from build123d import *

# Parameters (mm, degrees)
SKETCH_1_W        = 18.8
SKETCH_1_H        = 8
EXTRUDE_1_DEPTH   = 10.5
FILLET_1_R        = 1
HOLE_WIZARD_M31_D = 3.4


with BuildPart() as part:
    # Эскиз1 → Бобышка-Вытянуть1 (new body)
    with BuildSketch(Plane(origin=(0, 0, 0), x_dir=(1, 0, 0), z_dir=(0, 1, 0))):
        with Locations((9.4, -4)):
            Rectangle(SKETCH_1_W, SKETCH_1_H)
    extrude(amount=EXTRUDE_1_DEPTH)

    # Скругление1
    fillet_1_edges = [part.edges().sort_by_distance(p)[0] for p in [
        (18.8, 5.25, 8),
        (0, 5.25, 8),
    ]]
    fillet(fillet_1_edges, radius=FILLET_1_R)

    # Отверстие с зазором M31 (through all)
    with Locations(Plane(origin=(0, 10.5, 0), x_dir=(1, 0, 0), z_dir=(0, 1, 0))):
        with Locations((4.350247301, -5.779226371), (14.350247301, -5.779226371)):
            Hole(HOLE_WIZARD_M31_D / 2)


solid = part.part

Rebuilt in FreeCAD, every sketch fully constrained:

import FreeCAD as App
import Part
import Sketcher
from FreeCAD import Vector
Q = App.Units.Quantity


def edges_at(feature, points):
    """Names of the edges that pass closest to the given points."""
    edges = feature.Shape.Edges
    near = lambda p: min(range(len(edges)), key=lambda i: edges[i].distToShape(Part.Vertex(*p))[0])
    return sorted({f"Edge{near(p) + 1}" for p in points})

doc = App.newDocument("Part")
params = doc.addObject("Spreadsheet::Sheet", "Params")
for row, (alias, value) in enumerate([
    ("sketch1_height", "8 mm"),
    ("sketch1_width", "18.8 mm"),
    ("pad1_length", "10.5 mm"),
    ("fillet_radius", "1 mm"),
    ("sketch2_diameter", "3.4 mm"),
    ("hole_diameter", "3.4 mm"),
], start=1):
    params.set(f"A{row}", alias)
    params.set(f"B{row}", "=" + value)
    params.setAlias(f"B{row}", alias)

body = doc.addObject("PartDesign::Body", "Body")

# Sketch on XZ plane
sketch1 = body.newObject("Sketcher::SketchObject", "Sketch")
sketch1.AttachmentSupport = (doc.getObject("XZ_Plane"), [""])
sketch1.MapMode = "FlatFace"
sketch1.addGeometry([
    Part.LineSegment(Vector(0, 0, 0), Vector(0, 8, 0)),
    Part.LineSegment(Vector(0, 8, 0), Vector(19, 8, 0)),
    Part.LineSegment(Vector(19, 8, 0), Vector(19, 0, 0)),
    Part.LineSegment(Vector(19, 0, 0), Vector(0, 0, 0)),
], False)
sketch1.addConstraint([
    Sketcher.Constraint("Coincident", 0, 2, 1, 1),
    Sketcher.Constraint("Coincident", 1, 2, 2, 1),
    Sketcher.Constraint("Coincident", 2, 2, 3, 1),
    Sketcher.Constraint("Coincident", 3, 2, 0, 1),
    Sketcher.Constraint("Vertical", 0),
    Sketcher.Constraint("Horizontal", 1),
    Sketcher.Constraint("Vertical", 2),
    Sketcher.Constraint("Horizontal", 3),
    Sketcher.Constraint("Coincident", 3, 2, -1, 1),
    Sketcher.Constraint("DistanceY", 0, 1, 0, 2, Q("8 mm")),
    Sketcher.Constraint("DistanceX", 1, 1, 1, 2, Q("18.8 mm")),
])
sketch1.setExpression("Constraints[9]", "Params.sketch1_height")
sketch1.setExpression("Constraints[10]", "Params.sketch1_width")
pad1 = body.newObject("PartDesign::Pad", "Pad")
pad1.Profile = sketch1
pad1.setExpression("Length", "Params.pad1_length")
pad1.Reversed = True
doc.recompute()

fillet = body.newObject("PartDesign::Fillet", "Fillet")
fillet.Base = (pad1, edges_at(pad1, [(18.8, 5.25, 8), (0, 5.25, 8)]))
fillet.setExpression("Radius", "Params.fillet_radius")

# Sketch on XZ plane
sketch2 = body.newObject("Sketcher::SketchObject", "Sketch001")
sketch2.AttachmentSupport = (doc.getObject("XZ_Plane"), [""])
sketch2.MapMode = "FlatFace"
sketch2.AttachmentOffset = App.Placement(Vector(0, 0, -10.5), App.Rotation())
sketch2.addGeometry([
    Part.Circle(Vector(4.4, 5.8, 0), Vector(0, 0, 1), 1.7),
    Part.Circle(Vector(14.4, 5.8, 0), Vector(0, 0, 1), 1.7),
], False)
sketch2.addConstraint([
    Sketcher.Constraint("Equal", 0, 1),
    Sketcher.Constraint("Horizontal", 0, 3, 1, 3),
    Sketcher.Constraint("Diameter", 0, Q("3.4 mm")),
    Sketcher.Constraint("DistanceX", 0, 3, 1, 3, Q("10 mm")),
    Sketcher.Constraint("DistanceX", -1, 1, 0, 3, Q("4.350247 mm")),
    Sketcher.Constraint("DistanceY", -1, 1, 0, 3, Q("5.779226 mm")),
])
sketch2.setExpression("Constraints[2]", "Params.sketch2_diameter")
doc.recompute()
hole = body.newObject("PartDesign::Hole", "Hole")
hole.Profile = sketch2
hole.ThreadType = "None"
hole.setExpression("Diameter", "Params.hole_diameter")
hole.DepthType = "ThroughAll"
hole.Reversed = True

doc.recompute()
